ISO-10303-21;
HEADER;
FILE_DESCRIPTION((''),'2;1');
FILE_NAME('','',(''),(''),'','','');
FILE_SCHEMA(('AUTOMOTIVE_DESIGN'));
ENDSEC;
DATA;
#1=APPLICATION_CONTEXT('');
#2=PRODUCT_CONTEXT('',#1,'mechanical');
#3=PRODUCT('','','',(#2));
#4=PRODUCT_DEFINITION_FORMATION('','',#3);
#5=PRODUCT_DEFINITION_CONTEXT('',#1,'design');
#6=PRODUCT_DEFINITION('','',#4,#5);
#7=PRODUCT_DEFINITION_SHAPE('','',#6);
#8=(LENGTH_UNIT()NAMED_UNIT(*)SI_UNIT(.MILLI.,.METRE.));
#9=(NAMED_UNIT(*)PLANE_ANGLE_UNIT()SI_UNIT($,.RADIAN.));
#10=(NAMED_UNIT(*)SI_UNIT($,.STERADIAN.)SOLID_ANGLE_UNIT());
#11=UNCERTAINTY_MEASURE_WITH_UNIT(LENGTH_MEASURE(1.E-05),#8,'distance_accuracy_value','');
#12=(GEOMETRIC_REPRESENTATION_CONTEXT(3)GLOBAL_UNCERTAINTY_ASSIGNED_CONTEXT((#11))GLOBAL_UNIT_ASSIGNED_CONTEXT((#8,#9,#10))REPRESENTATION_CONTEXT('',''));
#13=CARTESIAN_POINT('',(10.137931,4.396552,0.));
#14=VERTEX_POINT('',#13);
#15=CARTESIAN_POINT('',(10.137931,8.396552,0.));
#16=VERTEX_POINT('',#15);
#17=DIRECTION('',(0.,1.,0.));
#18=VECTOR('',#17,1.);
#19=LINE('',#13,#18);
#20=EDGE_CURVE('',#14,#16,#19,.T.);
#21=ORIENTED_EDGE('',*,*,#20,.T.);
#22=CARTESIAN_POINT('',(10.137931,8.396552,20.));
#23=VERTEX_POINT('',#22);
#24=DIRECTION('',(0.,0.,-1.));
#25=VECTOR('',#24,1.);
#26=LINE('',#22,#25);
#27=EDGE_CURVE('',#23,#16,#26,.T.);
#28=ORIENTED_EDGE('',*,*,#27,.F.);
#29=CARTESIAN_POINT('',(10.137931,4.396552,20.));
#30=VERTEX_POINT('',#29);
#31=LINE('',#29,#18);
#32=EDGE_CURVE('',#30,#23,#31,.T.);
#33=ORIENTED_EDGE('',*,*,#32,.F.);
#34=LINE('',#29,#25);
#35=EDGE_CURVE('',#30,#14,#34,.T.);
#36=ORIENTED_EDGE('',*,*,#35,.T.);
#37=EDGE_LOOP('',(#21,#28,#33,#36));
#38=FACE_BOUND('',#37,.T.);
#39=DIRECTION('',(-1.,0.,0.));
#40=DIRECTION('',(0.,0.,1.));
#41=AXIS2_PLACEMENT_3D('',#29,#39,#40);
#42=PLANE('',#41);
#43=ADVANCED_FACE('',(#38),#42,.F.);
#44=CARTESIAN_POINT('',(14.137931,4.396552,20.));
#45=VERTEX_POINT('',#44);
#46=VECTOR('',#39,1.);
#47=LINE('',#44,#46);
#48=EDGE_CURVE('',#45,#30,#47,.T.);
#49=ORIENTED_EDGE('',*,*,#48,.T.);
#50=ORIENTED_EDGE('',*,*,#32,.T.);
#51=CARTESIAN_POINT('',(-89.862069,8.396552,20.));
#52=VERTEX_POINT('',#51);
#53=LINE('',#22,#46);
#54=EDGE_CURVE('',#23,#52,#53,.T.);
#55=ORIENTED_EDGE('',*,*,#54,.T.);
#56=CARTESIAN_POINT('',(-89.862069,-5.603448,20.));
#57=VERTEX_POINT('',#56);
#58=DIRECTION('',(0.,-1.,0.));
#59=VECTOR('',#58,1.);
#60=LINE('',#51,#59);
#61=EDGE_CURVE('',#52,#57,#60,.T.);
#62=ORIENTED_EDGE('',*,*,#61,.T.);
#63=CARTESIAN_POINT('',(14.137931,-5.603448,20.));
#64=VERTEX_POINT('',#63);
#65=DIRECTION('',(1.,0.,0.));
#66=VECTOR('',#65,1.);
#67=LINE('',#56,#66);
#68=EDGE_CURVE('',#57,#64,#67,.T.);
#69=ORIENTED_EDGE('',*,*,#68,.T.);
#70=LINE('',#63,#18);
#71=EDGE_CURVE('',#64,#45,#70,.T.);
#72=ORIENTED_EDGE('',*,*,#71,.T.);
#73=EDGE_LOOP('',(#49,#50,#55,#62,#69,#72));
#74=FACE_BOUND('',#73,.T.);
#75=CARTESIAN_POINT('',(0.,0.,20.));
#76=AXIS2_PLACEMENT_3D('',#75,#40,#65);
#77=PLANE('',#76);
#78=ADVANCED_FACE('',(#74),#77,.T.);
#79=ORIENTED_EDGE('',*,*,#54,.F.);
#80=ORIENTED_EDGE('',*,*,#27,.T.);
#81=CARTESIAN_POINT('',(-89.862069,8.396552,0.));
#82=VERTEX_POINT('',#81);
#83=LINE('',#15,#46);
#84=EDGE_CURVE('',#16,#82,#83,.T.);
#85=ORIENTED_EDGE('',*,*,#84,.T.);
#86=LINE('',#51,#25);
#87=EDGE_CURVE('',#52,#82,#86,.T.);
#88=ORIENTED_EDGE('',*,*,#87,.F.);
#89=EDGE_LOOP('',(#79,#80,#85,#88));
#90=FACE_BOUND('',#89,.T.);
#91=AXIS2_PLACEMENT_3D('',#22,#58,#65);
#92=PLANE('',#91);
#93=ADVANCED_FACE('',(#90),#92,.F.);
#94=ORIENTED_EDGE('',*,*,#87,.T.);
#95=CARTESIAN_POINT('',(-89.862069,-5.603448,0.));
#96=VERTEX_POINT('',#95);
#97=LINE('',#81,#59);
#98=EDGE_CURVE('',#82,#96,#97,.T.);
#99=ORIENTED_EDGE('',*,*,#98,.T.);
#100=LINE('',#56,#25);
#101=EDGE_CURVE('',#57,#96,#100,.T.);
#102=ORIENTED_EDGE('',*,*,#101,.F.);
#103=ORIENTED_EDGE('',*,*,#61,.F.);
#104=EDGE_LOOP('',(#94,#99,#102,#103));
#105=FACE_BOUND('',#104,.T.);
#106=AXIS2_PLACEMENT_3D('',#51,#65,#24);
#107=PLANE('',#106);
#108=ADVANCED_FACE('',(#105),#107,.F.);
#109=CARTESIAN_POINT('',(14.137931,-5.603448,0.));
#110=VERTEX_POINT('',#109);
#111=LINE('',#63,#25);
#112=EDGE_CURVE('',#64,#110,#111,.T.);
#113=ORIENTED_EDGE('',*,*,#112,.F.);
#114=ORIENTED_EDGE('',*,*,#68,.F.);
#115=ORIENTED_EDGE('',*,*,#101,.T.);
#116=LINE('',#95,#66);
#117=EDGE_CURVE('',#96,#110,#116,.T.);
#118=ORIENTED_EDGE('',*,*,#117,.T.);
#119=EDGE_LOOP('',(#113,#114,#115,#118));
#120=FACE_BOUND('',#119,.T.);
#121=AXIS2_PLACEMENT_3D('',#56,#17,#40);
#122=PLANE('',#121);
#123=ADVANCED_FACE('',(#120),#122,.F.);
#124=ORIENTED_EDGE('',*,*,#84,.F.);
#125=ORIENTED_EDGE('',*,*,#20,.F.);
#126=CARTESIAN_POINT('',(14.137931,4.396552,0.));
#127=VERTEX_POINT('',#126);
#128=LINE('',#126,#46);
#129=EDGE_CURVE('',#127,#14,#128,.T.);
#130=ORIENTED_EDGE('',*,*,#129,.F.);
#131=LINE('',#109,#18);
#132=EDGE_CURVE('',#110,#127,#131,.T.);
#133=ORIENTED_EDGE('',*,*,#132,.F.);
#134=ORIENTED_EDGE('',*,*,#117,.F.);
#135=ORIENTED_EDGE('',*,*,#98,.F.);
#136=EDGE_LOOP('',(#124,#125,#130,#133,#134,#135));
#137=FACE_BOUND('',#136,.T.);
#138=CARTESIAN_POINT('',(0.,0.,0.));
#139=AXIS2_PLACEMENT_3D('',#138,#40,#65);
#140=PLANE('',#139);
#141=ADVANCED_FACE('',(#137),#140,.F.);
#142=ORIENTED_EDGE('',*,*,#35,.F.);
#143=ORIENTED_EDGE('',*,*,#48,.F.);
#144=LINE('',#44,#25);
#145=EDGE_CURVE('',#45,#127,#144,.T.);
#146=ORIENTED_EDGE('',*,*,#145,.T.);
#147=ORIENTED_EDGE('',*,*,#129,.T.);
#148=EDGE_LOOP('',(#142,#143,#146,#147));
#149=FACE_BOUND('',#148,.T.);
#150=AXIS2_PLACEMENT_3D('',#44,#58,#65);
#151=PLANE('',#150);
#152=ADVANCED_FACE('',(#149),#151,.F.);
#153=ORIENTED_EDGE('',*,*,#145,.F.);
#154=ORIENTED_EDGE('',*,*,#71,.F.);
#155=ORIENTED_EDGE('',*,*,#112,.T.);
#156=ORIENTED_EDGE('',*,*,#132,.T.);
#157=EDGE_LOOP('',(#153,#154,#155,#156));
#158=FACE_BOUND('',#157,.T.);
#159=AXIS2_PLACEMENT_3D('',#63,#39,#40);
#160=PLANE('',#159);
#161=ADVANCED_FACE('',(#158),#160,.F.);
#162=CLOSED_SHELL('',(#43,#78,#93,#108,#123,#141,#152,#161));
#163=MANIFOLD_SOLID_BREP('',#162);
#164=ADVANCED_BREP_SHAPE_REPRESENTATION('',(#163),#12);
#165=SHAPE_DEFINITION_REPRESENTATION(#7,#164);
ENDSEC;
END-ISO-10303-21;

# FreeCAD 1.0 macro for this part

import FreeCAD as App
import Part
import Sketcher
from FreeCAD import Vector
Q = App.Units.Quantity

doc = App.newDocument("Part")
params = doc.addObject("Spreadsheet::Sheet", "Params")
for row, (alias, value) in enumerate([
    ("sketch1_width", "104 mm"),
    ("sketch1_width2", "4 mm"),
    ("sketch1_height", "14 mm"),
    ("pad1_length", "20 mm"),
], start=1):
    params.set(f"A{row}", alias)
    params.set(f"B{row}", "=" + value)
    params.setAlias(f"B{row}", alias)

body = doc.addObject("PartDesign::Body", "Body")

sketch1 = body.newObject("Sketcher::SketchObject", "Sketch")
sketch1.AttachmentSupport = (doc.getObject("XY_Plane"), [""])
sketch1.MapMode = "FlatFace"
sketch1.addGeometry(Part.LineSegment(Vector(-89.9, 8.4, 0), Vector(-89.9, -5.6, 0)), False)
sketch1.addGeometry(Part.LineSegment(Vector(-89.9, -5.6, 0), Vector(14.1, -5.6, 0)), False)
sketch1.addGeometry(Part.LineSegment(Vector(14.1, -5.6, 0), Vector(14.1, 4.4, 0)), False)
sketch1.addGeometry(Part.LineSegment(Vector(14.1, 4.4, 0), Vector(10.1, 4.4, 0)), False)
sketch1.addGeometry(Part.LineSegment(Vector(10.1, 4.4, 0), Vector(10.1, 8.4, 0)), False)
sketch1.addGeometry(Part.LineSegment(Vector(10.1, 8.4, 0), Vector(-89.9, 8.4, 0)), False)
sketch1.addConstraint(Sketcher.Constraint("Coincident", 0, 2, 1, 1))
sketch1.addConstraint(Sketcher.Constraint("Coincident", 1, 2, 2, 1))
sketch1.addConstraint(Sketcher.Constraint("Coincident", 2, 2, 3, 1))
sketch1.addConstraint(Sketcher.Constraint("Coincident", 3, 2, 4, 1))
sketch1.addConstraint(Sketcher.Constraint("Coincident", 4, 2, 5, 1))
sketch1.addConstraint(Sketcher.Constraint("Coincident", 5, 2, 0, 1))
sketch1.addConstraint(Sketcher.Constraint("Vertical", 0))
sketch1.addConstraint(Sketcher.Constraint("Horizontal", 1))
sketch1.addConstraint(Sketcher.Constraint("Vertical", 2))
sketch1.addConstraint(Sketcher.Constraint("Horizontal", 3))
sketch1.addConstraint(Sketcher.Constraint("Vertical", 4))
sketch1.addConstraint(Sketcher.Constraint("Horizontal", 5))
sketch1.addConstraint(Sketcher.Constraint("Equal", 3, 4))
sketch1.addConstraint(Sketcher.Constraint("DistanceX", 1, 1, 1, 2, Q("104 mm")))
sketch1.addConstraint(Sketcher.Constraint("DistanceX", 3, 2, 3, 1, Q("4 mm")))
sketch1.addConstraint(Sketcher.Constraint("DistanceY", 0, 2, 0, 1, Q("14 mm")))
sketch1.addConstraint(Sketcher.Constraint("DistanceX", 0, 2, -1, 1, Q("89.862069 mm")))
sketch1.addConstraint(Sketcher.Constraint("DistanceY", 0, 2, -1, 1, Q("5.603448 mm")))
sketch1.setExpression("Constraints[13]", "Params.sketch1_width")
sketch1.setExpression("Constraints[14]", "Params.sketch1_width2")
sketch1.setExpression("Constraints[15]", "Params.sketch1_height")
pad1 = body.newObject("PartDesign::Pad", "Pad")
pad1.Profile = sketch1
pad1.setExpression("Length", "Params.pad1_length")

doc.recompute()
